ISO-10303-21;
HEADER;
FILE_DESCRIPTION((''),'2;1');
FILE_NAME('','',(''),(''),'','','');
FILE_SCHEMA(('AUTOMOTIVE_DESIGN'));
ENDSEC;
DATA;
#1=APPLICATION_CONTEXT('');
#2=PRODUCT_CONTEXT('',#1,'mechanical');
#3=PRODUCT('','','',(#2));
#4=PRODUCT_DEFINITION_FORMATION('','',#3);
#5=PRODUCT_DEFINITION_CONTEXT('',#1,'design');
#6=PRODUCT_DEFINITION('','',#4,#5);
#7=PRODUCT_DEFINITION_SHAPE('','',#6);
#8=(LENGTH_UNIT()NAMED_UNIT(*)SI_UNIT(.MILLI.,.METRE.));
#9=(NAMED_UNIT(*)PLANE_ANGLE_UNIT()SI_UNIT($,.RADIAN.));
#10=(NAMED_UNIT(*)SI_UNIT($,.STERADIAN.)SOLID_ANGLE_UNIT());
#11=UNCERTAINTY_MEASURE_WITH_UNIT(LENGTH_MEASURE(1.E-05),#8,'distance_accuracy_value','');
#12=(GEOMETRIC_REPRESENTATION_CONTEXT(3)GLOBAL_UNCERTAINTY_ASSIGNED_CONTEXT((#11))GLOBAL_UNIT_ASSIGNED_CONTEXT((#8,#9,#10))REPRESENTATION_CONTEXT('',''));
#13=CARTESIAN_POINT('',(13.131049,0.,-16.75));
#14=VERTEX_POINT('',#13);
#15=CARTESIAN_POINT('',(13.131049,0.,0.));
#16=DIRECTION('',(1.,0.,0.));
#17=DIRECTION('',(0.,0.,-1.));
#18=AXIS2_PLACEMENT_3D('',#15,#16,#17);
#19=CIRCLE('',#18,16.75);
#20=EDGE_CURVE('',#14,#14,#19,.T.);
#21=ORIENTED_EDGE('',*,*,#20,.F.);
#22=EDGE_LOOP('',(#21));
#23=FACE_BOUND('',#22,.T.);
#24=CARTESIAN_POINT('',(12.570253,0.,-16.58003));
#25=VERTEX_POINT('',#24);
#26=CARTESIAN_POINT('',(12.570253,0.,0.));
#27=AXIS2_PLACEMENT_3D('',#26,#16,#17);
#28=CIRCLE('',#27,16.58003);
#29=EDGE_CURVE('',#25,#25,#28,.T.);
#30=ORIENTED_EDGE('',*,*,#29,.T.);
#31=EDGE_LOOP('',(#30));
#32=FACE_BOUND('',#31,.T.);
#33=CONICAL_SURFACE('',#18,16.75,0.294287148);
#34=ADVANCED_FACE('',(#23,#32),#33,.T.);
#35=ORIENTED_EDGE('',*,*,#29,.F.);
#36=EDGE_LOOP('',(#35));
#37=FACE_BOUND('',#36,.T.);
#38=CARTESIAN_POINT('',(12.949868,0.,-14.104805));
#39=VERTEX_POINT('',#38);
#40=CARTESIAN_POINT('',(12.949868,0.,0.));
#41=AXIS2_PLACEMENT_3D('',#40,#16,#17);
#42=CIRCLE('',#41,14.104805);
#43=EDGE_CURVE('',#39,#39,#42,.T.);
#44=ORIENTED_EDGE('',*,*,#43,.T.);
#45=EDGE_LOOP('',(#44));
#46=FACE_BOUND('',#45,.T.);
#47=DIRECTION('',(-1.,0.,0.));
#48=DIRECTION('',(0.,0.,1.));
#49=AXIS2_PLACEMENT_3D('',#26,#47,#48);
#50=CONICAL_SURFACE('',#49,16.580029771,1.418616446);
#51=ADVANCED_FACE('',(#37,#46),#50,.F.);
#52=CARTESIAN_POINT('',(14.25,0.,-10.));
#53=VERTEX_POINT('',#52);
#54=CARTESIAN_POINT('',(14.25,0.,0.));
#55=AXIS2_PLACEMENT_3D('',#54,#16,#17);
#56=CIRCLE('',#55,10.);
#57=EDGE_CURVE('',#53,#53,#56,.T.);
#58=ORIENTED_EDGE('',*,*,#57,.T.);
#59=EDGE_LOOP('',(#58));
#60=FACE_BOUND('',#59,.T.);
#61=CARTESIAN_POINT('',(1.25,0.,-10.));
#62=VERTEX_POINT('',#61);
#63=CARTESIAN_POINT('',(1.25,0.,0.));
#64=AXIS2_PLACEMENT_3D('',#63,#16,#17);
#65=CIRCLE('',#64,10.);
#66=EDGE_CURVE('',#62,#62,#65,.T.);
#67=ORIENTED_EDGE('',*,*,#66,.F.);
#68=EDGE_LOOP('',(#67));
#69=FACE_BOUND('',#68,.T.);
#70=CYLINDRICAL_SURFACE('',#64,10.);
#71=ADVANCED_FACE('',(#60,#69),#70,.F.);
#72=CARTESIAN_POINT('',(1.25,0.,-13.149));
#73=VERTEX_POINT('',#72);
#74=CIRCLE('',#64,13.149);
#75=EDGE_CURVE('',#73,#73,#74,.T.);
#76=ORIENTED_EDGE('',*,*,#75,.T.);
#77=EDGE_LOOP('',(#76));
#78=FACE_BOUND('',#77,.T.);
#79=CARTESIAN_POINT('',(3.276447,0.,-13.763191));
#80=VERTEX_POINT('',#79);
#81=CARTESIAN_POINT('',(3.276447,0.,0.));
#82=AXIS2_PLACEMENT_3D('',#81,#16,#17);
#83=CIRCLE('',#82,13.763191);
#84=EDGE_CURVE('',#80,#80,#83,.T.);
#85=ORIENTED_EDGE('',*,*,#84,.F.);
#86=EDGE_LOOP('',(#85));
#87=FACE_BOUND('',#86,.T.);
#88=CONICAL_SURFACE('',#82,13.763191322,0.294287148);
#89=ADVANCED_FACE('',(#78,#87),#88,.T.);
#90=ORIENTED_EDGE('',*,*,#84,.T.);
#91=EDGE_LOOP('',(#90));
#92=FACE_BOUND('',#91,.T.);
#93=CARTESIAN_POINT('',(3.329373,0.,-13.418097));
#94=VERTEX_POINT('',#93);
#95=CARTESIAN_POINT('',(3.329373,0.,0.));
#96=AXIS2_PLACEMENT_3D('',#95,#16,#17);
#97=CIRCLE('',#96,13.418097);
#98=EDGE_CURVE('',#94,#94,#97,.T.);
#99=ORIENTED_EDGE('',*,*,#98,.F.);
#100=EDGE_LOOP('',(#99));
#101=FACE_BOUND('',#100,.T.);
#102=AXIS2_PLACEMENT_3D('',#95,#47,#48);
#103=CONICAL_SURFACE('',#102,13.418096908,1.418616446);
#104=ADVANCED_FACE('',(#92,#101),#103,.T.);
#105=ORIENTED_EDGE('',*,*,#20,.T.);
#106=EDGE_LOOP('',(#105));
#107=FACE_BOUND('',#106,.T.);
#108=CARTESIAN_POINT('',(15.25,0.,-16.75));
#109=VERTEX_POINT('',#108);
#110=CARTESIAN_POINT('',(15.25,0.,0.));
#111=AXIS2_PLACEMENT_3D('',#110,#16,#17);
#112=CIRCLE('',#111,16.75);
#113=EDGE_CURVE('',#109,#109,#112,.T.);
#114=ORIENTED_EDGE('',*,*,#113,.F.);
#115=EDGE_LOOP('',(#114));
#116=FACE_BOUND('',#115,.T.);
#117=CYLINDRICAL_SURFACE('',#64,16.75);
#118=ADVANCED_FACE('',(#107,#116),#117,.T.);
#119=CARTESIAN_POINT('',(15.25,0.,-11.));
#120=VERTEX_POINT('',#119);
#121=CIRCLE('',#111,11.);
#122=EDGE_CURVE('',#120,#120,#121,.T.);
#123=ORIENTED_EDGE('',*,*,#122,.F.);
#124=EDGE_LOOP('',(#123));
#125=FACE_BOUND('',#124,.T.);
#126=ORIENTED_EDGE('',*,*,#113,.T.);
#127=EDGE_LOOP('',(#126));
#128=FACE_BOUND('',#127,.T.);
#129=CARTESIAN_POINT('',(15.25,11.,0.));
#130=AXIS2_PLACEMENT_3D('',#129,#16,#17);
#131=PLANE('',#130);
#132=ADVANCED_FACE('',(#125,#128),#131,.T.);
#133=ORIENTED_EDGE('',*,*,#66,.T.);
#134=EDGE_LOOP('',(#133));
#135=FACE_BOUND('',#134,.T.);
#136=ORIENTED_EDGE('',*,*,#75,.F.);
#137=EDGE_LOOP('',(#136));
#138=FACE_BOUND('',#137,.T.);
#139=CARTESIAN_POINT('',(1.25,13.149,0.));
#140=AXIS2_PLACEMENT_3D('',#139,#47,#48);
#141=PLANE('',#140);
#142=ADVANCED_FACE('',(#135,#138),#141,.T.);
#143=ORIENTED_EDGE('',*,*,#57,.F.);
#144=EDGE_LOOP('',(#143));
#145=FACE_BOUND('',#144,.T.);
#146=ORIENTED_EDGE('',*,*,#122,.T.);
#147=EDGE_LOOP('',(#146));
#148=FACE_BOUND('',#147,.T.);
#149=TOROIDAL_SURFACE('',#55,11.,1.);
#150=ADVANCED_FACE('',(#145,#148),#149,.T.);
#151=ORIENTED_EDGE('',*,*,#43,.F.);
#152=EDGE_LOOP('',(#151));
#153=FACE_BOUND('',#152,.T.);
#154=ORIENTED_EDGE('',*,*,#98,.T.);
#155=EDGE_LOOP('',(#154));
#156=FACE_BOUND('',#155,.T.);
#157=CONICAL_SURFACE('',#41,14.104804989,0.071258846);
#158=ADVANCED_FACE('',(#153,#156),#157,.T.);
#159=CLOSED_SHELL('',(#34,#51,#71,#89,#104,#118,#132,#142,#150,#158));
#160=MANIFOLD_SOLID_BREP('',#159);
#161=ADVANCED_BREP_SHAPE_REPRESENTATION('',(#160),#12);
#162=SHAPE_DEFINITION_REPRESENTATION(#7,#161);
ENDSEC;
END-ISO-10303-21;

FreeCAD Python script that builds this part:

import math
import FreeCAD as App
import Part
import Sketcher
from FreeCAD import Vector

doc = App.newDocument("Part")
body = doc.addObject("PartDesign::Body", "Body")

sketch1 = body.newObject("Sketcher::SketchObject", "Sketch")
sketch1.AttachmentSupport = (doc.getObject("XY_Plane"), [""])
sketch1.MapMode = "FlatFace"
sketch1.addGeometry([
    Part.LineSegment(Vector(1.25, 13.149, 0), Vector(1.25, 10, 0)),
    Part.LineSegment(Vector(1.25, 10, 0), Vector(14.25, 10, 0)),
    Part.ArcOfCircle(Part.Circle(Vector(14.25, 11, 0), Vector(0, 0, 1), 1), math.radians(-90), math.radians(0)),
    Part.LineSegment(Vector(15.25, 11, 0), Vector(15.25, 16.75, 0)),
    Part.LineSegment(Vector(15.25, 16.75, 0), Vector(13.131049, 16.75, 0)),
    Part.LineSegment(Vector(13.131049, 16.75, 0), Vector(12.570253, 16.58003, 0)),
    Part.LineSegment(Vector(12.570253, 16.58003, 0), Vector(12.949868, 14.104805, 0)),
    Part.LineSegment(Vector(12.949868, 14.104805, 0), Vector(3.329373, 13.418097, 0)),
    Part.LineSegment(Vector(3.329373, 13.418097, 0), Vector(3.276447, 13.763191, 0)),
    Part.LineSegment(Vector(3.276447, 13.763191, 0), Vector(1.25, 13.149, 0)),
], False)
sketch1.addConstraint([
    Sketcher.Constraint("Coincident", 0, 2, 1, 1),
    Sketcher.Constraint("Tangent", 1, 2, 2, 1),
    Sketcher.Constraint("Tangent", 2, 2, 3, 1),
    Sketcher.Constraint("Coincident", 3, 2, 4, 1),
    Sketcher.Constraint("Coincident", 4, 2, 5, 1),
    Sketcher.Constraint("Coincident", 5, 2, 6, 1),
    Sketcher.Constraint("Coincident", 6, 2, 7, 1),
    Sketcher.Constraint("Coincident", 7, 2, 8, 1),
    Sketcher.Constraint("Coincident", 8, 2, 9, 1),
    Sketcher.Constraint("Coincident", 9, 2, 0, 1),
    Sketcher.Constraint("Vertical", 0),
    Sketcher.Constraint("Horizontal", 1),
    Sketcher.Constraint("Vertical", 3),
    Sketcher.Constraint("Horizontal", 4),
    Sketcher.Constraint("Parallel", 6, 8),
    Sketcher.Constraint("Parallel", 5, 9),
    Sketcher.Constraint("Radius", 2, 1.0),
    Sketcher.Constraint("DistanceX", 1, 1, 1, 2, 13.0),
    Sketcher.Constraint("DistanceY", -1, 1, 2, 3, 11.0),
    Sketcher.Constraint("DistanceY", 3, 1, 3, 2, 5.75),
    Sketcher.Constraint("DistanceY", 0, 2, 0, 1, 3.149),
    Sketcher.Constraint("DistanceX", -1, 1, 2, 3, 14.25),
    Sketcher.Constraint("DistanceX", 4, 2, 4, 1, 2.118951),
    Sketcher.Constraint("DistanceX", 8, 2, 4, 2, 9.854602),
    Sketcher.Constraint("Distance", 8, 0.349129),
    Sketcher.Constraint("Distance", 9, 2.11748),
    Sketcher.Constraint("DistanceY", -1, 1, 5, 2, 16.58003),
    Sketcher.Constraint("DistanceX", 6, 2, 4, 2, 0.181181),
    Sketcher.Constraint("DistanceY", 7, 2, 6, 2, 0.686708),
])
revolution = body.newObject("PartDesign::Revolution", "Revolution")
revolution.Profile = sketch1
revolution.ReferenceAxis = (sketch1, ["H_Axis"])
revolution.Angle = 360

doc.recompute()
